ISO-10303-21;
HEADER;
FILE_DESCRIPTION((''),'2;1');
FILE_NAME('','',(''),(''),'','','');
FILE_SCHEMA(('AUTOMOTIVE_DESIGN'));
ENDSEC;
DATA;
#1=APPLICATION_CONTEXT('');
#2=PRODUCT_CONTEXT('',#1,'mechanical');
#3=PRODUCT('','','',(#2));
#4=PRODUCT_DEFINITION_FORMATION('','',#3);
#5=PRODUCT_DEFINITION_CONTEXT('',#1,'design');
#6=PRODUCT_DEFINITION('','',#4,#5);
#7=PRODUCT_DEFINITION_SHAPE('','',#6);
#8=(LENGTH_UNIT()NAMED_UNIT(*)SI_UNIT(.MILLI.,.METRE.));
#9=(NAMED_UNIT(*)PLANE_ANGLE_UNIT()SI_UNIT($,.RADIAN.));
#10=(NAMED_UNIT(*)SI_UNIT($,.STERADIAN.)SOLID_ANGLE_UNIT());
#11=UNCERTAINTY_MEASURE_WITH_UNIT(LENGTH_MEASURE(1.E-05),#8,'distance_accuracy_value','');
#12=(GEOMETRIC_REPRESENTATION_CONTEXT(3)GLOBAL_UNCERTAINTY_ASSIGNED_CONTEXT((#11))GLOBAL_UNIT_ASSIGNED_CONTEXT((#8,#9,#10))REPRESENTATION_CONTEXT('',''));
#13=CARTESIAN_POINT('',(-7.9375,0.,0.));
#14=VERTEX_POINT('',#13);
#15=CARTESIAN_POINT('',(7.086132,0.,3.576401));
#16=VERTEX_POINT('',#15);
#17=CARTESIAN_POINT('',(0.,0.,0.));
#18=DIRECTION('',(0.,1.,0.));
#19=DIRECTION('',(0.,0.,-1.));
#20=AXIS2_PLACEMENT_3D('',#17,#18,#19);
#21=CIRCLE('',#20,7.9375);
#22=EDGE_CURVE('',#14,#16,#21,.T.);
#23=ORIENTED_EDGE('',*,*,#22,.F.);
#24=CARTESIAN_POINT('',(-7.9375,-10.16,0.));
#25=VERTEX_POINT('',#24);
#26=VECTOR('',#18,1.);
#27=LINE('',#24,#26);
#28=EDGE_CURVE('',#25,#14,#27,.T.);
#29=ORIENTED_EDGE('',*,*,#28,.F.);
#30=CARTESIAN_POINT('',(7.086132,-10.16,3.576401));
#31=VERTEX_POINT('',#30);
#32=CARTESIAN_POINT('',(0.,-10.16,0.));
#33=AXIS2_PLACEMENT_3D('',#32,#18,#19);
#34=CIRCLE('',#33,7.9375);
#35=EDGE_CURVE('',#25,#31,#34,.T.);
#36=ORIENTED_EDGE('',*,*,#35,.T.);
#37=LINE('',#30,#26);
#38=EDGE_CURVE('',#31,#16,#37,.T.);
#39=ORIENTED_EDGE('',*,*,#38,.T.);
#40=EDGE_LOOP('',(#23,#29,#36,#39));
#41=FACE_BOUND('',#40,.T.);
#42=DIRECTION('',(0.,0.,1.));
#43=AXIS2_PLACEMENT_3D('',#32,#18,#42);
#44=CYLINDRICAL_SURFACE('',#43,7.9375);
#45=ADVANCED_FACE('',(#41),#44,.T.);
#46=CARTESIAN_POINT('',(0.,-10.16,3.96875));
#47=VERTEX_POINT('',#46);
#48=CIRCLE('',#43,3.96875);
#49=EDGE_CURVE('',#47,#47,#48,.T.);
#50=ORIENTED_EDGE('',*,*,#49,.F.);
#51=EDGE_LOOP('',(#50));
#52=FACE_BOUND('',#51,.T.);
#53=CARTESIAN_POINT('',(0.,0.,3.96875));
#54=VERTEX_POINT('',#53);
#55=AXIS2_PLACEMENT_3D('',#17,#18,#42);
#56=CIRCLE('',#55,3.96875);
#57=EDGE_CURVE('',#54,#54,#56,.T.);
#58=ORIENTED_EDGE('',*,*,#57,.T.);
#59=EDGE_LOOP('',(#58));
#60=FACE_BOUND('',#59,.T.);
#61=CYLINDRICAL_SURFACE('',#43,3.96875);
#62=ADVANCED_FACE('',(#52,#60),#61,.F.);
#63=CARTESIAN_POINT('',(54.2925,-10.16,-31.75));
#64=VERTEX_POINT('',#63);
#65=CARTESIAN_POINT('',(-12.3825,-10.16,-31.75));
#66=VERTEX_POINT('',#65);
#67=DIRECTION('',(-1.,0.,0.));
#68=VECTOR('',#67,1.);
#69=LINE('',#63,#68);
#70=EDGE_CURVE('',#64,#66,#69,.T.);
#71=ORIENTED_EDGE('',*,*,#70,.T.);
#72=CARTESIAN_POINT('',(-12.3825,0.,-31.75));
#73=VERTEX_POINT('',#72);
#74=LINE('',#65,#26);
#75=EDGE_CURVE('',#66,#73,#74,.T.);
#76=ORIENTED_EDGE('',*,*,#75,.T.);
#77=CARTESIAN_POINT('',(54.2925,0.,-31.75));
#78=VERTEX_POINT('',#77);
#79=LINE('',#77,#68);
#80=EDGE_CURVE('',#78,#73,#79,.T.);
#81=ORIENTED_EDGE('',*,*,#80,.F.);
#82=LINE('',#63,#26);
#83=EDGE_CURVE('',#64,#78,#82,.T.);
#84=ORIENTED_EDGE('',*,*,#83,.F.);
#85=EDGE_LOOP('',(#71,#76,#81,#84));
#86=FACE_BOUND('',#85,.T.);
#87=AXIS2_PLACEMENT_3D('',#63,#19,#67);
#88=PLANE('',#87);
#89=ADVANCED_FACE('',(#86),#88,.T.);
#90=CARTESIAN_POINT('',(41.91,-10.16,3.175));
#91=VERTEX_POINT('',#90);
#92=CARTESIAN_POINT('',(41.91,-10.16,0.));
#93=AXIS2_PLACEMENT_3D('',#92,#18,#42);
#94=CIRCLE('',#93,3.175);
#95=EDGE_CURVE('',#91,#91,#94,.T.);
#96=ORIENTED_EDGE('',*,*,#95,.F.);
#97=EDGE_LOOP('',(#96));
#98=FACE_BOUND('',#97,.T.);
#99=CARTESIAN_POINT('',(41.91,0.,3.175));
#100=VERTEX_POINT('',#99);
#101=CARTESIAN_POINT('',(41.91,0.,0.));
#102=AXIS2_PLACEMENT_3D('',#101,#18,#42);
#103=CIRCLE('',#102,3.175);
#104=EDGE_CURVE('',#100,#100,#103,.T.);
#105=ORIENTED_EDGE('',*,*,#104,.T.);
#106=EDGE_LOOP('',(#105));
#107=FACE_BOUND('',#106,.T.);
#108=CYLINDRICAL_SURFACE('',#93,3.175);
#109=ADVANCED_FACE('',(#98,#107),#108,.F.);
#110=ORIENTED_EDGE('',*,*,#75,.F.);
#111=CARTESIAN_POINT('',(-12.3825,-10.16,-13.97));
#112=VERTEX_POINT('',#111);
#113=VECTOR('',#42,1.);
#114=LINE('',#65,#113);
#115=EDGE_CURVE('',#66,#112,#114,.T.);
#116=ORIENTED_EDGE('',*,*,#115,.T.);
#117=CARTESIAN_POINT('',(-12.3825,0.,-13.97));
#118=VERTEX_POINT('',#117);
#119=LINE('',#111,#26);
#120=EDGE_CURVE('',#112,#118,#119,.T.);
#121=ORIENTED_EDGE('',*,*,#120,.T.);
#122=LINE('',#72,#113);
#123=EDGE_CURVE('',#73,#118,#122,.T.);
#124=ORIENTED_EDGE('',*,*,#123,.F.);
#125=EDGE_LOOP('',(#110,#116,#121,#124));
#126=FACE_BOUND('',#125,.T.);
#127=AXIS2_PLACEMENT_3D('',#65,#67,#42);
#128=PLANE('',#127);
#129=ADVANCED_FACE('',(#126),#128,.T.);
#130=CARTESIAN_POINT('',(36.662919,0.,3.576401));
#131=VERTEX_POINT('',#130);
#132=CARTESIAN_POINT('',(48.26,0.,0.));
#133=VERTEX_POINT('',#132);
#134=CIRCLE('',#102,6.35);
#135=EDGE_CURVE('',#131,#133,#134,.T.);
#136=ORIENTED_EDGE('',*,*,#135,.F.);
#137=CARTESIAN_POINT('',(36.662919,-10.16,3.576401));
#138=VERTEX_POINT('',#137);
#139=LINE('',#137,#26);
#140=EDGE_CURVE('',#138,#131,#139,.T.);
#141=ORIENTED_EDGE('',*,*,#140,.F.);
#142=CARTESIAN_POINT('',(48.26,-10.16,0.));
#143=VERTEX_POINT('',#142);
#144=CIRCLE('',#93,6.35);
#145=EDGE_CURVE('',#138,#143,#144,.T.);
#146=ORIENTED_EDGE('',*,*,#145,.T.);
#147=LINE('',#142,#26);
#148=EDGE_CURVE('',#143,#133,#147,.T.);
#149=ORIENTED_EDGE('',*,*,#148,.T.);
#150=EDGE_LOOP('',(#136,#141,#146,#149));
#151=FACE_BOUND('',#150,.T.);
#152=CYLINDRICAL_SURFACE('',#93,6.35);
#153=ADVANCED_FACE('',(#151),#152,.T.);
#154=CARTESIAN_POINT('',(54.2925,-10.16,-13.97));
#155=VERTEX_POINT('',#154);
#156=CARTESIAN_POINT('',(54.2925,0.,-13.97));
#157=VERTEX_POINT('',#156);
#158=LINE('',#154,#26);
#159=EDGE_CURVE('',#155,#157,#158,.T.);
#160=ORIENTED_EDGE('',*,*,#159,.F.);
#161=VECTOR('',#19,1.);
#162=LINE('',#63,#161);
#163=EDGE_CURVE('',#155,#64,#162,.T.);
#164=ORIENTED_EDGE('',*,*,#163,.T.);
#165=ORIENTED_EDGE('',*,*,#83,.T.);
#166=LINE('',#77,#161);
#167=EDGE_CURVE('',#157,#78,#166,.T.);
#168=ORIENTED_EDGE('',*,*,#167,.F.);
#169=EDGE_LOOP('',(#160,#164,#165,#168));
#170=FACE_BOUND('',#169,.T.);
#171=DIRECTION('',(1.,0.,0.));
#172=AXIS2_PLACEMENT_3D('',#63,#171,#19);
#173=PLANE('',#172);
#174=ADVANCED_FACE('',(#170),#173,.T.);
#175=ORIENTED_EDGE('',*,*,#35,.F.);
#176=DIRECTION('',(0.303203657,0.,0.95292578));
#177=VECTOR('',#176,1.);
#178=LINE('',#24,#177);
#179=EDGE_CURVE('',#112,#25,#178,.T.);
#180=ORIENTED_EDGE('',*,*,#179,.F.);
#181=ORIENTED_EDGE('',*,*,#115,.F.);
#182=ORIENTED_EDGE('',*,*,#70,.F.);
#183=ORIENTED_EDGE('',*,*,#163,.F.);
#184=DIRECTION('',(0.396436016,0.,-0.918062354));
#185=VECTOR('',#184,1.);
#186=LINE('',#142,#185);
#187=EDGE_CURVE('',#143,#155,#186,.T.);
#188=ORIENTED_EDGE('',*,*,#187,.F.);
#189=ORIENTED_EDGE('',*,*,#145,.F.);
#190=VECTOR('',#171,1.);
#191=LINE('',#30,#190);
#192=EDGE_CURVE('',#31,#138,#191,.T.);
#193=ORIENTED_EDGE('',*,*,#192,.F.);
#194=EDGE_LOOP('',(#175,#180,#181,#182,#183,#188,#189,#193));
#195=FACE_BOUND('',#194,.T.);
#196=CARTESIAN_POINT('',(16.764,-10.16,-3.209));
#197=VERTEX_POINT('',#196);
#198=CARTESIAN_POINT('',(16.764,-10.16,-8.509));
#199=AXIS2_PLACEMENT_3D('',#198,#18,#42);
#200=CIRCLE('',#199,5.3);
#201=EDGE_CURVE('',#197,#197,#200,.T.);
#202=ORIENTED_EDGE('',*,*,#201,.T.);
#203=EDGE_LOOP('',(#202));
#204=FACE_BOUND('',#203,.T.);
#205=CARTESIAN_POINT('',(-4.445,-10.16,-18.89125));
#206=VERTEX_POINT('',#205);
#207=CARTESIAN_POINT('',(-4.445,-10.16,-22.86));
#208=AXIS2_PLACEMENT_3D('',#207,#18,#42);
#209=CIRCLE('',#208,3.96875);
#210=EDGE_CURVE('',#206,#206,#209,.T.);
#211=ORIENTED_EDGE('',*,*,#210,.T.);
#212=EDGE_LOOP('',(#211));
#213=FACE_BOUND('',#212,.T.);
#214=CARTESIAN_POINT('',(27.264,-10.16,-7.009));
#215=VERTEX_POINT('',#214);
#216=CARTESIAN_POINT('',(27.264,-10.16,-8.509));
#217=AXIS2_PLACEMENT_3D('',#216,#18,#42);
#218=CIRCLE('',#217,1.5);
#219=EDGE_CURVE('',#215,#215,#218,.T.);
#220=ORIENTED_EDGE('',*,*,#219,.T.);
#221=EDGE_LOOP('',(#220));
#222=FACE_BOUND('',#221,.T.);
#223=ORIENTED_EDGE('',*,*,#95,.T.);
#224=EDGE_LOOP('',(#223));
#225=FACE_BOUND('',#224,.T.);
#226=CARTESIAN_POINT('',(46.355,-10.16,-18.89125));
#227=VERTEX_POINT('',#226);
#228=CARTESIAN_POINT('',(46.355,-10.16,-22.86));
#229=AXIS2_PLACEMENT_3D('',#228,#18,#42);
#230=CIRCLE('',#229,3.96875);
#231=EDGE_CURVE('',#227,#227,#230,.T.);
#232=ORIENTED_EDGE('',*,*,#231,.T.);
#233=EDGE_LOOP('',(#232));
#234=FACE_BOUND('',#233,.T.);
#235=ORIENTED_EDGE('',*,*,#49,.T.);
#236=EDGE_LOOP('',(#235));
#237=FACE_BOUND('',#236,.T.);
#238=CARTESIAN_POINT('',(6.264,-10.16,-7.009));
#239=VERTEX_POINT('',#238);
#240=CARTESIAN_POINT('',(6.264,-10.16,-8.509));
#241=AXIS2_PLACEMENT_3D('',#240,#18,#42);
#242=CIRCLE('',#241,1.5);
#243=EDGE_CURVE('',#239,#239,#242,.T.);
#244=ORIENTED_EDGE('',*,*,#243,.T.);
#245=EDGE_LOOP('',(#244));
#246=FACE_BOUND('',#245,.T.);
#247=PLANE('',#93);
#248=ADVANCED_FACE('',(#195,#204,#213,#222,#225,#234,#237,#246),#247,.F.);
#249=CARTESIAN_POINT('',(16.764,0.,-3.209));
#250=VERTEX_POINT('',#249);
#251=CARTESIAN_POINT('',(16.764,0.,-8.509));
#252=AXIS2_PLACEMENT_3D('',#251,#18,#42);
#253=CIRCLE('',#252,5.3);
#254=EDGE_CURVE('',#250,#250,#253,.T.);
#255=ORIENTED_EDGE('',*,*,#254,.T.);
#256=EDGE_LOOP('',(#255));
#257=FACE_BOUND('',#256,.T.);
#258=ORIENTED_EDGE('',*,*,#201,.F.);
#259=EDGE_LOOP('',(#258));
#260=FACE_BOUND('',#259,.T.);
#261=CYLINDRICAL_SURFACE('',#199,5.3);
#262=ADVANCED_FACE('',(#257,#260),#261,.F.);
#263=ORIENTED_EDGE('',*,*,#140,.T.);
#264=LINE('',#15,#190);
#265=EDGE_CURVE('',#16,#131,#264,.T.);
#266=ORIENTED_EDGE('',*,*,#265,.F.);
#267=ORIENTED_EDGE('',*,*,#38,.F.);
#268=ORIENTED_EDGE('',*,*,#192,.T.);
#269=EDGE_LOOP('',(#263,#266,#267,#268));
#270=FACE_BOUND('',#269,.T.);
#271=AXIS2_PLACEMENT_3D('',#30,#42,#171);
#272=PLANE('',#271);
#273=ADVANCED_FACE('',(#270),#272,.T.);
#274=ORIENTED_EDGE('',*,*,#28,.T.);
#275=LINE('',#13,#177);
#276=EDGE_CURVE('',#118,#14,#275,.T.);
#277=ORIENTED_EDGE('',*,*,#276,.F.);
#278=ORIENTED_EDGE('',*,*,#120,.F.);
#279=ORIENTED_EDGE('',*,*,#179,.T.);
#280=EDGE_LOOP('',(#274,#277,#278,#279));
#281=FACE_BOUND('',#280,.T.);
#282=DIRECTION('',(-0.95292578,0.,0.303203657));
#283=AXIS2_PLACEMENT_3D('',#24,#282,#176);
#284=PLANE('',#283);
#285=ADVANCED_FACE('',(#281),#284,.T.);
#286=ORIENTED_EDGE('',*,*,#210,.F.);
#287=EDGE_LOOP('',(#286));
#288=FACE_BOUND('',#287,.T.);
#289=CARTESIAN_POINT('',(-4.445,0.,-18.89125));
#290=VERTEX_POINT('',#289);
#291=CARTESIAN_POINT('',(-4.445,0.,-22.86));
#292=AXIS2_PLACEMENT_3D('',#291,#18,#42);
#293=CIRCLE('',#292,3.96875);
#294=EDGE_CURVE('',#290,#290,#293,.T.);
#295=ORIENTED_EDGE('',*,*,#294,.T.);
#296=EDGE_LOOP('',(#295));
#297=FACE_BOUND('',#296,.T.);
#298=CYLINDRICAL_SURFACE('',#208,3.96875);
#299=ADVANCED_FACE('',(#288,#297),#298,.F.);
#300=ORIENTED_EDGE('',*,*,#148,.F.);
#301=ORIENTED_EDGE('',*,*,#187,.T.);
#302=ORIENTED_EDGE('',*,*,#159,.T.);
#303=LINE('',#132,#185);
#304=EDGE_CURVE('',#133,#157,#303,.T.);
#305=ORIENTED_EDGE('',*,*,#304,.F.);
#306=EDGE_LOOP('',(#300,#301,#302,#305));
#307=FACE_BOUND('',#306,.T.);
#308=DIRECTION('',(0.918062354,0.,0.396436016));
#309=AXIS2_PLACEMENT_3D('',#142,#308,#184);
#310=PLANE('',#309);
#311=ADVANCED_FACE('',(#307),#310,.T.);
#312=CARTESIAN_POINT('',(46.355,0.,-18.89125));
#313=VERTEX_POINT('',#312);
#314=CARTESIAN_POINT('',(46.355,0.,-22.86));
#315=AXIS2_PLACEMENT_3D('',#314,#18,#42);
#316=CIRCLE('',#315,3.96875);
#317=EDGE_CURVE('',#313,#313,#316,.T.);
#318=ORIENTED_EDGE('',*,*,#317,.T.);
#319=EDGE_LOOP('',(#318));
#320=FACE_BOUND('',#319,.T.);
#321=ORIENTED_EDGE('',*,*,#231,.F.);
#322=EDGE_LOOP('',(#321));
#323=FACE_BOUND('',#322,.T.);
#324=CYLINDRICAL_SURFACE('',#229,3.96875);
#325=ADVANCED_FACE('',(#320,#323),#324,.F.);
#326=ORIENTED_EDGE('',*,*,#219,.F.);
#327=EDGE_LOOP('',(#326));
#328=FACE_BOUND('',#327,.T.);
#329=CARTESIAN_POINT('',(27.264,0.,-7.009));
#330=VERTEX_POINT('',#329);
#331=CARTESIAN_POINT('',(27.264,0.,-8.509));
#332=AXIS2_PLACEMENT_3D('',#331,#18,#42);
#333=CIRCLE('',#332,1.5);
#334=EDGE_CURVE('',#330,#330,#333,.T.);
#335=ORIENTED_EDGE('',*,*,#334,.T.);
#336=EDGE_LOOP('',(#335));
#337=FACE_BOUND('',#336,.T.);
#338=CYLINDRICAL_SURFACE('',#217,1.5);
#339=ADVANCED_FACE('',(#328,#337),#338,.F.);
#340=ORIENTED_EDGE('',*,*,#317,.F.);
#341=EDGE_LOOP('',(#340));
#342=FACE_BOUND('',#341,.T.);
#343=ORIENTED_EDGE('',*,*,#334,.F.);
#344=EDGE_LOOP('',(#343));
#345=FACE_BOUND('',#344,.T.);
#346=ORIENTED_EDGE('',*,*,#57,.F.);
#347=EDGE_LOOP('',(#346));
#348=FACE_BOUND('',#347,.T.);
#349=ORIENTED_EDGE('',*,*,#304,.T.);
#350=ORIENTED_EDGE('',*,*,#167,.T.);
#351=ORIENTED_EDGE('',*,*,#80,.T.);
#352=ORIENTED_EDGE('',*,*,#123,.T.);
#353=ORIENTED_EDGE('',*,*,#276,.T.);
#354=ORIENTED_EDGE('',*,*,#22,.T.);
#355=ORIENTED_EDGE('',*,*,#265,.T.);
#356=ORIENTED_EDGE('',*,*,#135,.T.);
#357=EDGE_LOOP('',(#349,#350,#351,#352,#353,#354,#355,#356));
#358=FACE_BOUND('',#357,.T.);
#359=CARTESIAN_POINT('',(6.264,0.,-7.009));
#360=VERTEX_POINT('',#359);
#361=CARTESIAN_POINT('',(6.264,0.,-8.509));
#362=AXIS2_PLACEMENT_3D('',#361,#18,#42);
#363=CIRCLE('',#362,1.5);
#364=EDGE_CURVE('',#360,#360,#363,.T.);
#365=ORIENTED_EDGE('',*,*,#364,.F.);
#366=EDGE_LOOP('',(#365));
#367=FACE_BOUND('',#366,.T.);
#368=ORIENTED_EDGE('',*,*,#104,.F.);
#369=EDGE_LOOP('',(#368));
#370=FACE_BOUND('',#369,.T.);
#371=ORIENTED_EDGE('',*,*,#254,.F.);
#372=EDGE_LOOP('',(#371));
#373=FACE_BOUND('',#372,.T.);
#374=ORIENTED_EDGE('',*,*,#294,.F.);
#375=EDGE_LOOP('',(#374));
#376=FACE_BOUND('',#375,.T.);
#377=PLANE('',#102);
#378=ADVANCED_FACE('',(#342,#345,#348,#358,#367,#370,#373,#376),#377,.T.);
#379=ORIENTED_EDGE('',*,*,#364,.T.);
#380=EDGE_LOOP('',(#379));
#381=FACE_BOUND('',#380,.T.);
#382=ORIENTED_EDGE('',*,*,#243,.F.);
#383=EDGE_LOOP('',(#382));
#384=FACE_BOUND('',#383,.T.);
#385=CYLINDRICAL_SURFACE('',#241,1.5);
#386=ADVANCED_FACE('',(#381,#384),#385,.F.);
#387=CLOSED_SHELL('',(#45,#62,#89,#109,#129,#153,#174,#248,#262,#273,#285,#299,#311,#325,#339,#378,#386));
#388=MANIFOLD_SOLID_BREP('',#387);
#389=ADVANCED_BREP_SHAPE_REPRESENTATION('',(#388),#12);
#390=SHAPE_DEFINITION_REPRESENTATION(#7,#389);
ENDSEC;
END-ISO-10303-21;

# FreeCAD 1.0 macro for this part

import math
import FreeCAD as App
import Part
import Sketcher

V = App.Vector
Q = App.Units.Quantity

doc = App.newDocument("Part")
body = doc.addObject("PartDesign::Body", "Body")

# Sketch on XZ plane
sketch1 = body.newObject("Sketcher::SketchObject", "Sketch")
sketch1.AttachmentSupport = (doc.getObject("XZ_Plane"), [""])
sketch1.MapMode = "FlatFace"
sketch1.addGeometry([
    Part.LineSegment(V(54.2925, -31.75, 0), V(-12.3825, -31.75, 0)),  # 0
    Part.LineSegment(V(-12.3825, -31.75, 0), V(-12.3825, -13.97, 0)),  # 1
    Part.LineSegment(V(-12.3825, -13.97, 0), V(-7.9375, 0, 0)),  # 2
    Part.ArcOfCircle(Part.Circle(V(0, 0, 0), V(0, 0, 1), 7.9375), math.radians(26.780275), math.radians(180)),  # 3
    Part.LineSegment(V(7.086132, 3.576401, 0), V(36.662919, 3.576401, 0)),  # 4
    Part.ArcOfCircle(Part.Circle(V(41.91, 0, 0), V(0, 0, 1), 6.35), math.radians(0), math.radians(145.721725)),  # 5
    Part.LineSegment(V(48.26, 0, 0), V(54.2925, -13.97, 0)),  # 6
    Part.LineSegment(V(54.2925, -13.97, 0), V(54.2925, -31.75, 0)),  # 7
    Part.Circle(V(0, 0, 0), V(0, 0, 1), 3.96875),  # 8
    Part.Circle(V(6.264, -8.509, 0), V(0, 0, 1), 1.5),  # 9
    Part.Circle(V(16.764, -8.509, 0), V(0, 0, 1), 5.3),  # 10
    Part.Circle(V(41.91, 0, 0), V(0, 0, 1), 3.175),  # 11
    Part.Circle(V(27.264, -8.509, 0), V(0, 0, 1), 1.5),  # 12
    Part.Circle(V(-4.445, -22.86, 0), V(0, 0, 1), 3.96875),  # 13
    Part.Circle(V(46.355, -22.86, 0), V(0, 0, 1), 3.96875),  # 14
], False)
sketch1.addConstraint([
    Sketcher.Constraint("Coincident", 0, 2, 1, 1),
    Sketcher.Constraint("Coincident", 1, 2, 2, 1),
    Sketcher.Constraint("Coincident", 2, 2, 3, 2),
    Sketcher.Constraint("Coincident", 3, 1, 4, 1),
    Sketcher.Constraint("Coincident", 4, 2, 5, 2),
    Sketcher.Constraint("Coincident", 5, 1, 6, 1),
    Sketcher.Constraint("Coincident", 6, 2, 7, 1),
    Sketcher.Constraint("Coincident", 7, 2, 0, 1),
    Sketcher.Constraint("Horizontal", 0),
    Sketcher.Constraint("Vertical", 1),
    Sketcher.Constraint("Horizontal", 4),
    Sketcher.Constraint("Vertical", 7),
    Sketcher.Constraint("Coincident", 3, 3, -1, 1),
    Sketcher.Constraint("Coincident", 8, 3, -1, 1),
    Sketcher.Constraint("Coincident", 11, 3, 5, 3),
    Sketcher.Constraint("Equal", 9, 12),
    Sketcher.Constraint("Equal", 8, 13),
    Sketcher.Constraint("Equal", 13, 14),
    Sketcher.Constraint("PointOnObject", 5, 3, -1),
    Sketcher.Constraint("PointOnObject", 2, 2, -1),
    Sketcher.Constraint("PointOnObject", 5, 1, -1),
    Sketcher.Constraint("Horizontal", 9, 3, 10, 3),
    Sketcher.Constraint("Horizontal", 10, 3, 12, 3),
    Sketcher.Constraint("Horizontal", 13, 3, 14, 3),
    Sketcher.Constraint("Horizontal", 1, 2, 6, 2),
    Sketcher.Constraint("Diameter", 11, Q("0.25 in")),
    Sketcher.Constraint("Radius", 5, Q("0.25 in")),
    Sketcher.Constraint("Diameter", 8, Q("0.3125 in")),
    Sketcher.Constraint("DistanceY", 1, 1, 1, 2, Q("0.7 in")),
    Sketcher.Constraint("Radius", 3, Q("0.3125 in")),
    Sketcher.Constraint("DistanceY", 13, 3, -1, 1, Q("0.9 in")),
    Sketcher.Constraint("DistanceX", -1, 1, 5, 1, Q("1.9 in")),
    Sketcher.Constraint("Diameter", 9, Q("3 mm")),
    Sketcher.Constraint("Diameter", 10, Q("10.6 mm")),
    Sketcher.Constraint("DistanceX", 0, 2, 0, 1, Q("2.625 in")),
    Sketcher.Constraint("DistanceX", -1, 1, 10, 3, Q("0.66 in")),
    Sketcher.Constraint("DistanceY", 0, 2, -1, 1, Q("1.25 in")),
    Sketcher.Constraint("DistanceY", 9, 3, -1, 1, Q("0.335 in")),
    Sketcher.Constraint("DistanceX", 13, 3, -1, 1, Q("0.175 in")),
    Sketcher.Constraint("DistanceX", -1, 1, 14, 3, Q("1.825 in")),
    Sketcher.Constraint("DistanceX", 0, 2, 13, 3, Q("0.3125 in")),
    Sketcher.Constraint("DistanceX", -1, 1, 9, 3, Q("6.264 mm")),
    Sketcher.Constraint("DistanceX", -1, 1, 12, 3, Q("27.264 mm")),
    Sketcher.Constraint("DistanceY", -1, 1, 3, 1, Q("3.576401 mm")),
])
pad1 = body.newObject("PartDesign::Pad", "Pad")
pad1.Profile = sketch1
pad1.Length = Q("0.4 in")

doc.recompute()
